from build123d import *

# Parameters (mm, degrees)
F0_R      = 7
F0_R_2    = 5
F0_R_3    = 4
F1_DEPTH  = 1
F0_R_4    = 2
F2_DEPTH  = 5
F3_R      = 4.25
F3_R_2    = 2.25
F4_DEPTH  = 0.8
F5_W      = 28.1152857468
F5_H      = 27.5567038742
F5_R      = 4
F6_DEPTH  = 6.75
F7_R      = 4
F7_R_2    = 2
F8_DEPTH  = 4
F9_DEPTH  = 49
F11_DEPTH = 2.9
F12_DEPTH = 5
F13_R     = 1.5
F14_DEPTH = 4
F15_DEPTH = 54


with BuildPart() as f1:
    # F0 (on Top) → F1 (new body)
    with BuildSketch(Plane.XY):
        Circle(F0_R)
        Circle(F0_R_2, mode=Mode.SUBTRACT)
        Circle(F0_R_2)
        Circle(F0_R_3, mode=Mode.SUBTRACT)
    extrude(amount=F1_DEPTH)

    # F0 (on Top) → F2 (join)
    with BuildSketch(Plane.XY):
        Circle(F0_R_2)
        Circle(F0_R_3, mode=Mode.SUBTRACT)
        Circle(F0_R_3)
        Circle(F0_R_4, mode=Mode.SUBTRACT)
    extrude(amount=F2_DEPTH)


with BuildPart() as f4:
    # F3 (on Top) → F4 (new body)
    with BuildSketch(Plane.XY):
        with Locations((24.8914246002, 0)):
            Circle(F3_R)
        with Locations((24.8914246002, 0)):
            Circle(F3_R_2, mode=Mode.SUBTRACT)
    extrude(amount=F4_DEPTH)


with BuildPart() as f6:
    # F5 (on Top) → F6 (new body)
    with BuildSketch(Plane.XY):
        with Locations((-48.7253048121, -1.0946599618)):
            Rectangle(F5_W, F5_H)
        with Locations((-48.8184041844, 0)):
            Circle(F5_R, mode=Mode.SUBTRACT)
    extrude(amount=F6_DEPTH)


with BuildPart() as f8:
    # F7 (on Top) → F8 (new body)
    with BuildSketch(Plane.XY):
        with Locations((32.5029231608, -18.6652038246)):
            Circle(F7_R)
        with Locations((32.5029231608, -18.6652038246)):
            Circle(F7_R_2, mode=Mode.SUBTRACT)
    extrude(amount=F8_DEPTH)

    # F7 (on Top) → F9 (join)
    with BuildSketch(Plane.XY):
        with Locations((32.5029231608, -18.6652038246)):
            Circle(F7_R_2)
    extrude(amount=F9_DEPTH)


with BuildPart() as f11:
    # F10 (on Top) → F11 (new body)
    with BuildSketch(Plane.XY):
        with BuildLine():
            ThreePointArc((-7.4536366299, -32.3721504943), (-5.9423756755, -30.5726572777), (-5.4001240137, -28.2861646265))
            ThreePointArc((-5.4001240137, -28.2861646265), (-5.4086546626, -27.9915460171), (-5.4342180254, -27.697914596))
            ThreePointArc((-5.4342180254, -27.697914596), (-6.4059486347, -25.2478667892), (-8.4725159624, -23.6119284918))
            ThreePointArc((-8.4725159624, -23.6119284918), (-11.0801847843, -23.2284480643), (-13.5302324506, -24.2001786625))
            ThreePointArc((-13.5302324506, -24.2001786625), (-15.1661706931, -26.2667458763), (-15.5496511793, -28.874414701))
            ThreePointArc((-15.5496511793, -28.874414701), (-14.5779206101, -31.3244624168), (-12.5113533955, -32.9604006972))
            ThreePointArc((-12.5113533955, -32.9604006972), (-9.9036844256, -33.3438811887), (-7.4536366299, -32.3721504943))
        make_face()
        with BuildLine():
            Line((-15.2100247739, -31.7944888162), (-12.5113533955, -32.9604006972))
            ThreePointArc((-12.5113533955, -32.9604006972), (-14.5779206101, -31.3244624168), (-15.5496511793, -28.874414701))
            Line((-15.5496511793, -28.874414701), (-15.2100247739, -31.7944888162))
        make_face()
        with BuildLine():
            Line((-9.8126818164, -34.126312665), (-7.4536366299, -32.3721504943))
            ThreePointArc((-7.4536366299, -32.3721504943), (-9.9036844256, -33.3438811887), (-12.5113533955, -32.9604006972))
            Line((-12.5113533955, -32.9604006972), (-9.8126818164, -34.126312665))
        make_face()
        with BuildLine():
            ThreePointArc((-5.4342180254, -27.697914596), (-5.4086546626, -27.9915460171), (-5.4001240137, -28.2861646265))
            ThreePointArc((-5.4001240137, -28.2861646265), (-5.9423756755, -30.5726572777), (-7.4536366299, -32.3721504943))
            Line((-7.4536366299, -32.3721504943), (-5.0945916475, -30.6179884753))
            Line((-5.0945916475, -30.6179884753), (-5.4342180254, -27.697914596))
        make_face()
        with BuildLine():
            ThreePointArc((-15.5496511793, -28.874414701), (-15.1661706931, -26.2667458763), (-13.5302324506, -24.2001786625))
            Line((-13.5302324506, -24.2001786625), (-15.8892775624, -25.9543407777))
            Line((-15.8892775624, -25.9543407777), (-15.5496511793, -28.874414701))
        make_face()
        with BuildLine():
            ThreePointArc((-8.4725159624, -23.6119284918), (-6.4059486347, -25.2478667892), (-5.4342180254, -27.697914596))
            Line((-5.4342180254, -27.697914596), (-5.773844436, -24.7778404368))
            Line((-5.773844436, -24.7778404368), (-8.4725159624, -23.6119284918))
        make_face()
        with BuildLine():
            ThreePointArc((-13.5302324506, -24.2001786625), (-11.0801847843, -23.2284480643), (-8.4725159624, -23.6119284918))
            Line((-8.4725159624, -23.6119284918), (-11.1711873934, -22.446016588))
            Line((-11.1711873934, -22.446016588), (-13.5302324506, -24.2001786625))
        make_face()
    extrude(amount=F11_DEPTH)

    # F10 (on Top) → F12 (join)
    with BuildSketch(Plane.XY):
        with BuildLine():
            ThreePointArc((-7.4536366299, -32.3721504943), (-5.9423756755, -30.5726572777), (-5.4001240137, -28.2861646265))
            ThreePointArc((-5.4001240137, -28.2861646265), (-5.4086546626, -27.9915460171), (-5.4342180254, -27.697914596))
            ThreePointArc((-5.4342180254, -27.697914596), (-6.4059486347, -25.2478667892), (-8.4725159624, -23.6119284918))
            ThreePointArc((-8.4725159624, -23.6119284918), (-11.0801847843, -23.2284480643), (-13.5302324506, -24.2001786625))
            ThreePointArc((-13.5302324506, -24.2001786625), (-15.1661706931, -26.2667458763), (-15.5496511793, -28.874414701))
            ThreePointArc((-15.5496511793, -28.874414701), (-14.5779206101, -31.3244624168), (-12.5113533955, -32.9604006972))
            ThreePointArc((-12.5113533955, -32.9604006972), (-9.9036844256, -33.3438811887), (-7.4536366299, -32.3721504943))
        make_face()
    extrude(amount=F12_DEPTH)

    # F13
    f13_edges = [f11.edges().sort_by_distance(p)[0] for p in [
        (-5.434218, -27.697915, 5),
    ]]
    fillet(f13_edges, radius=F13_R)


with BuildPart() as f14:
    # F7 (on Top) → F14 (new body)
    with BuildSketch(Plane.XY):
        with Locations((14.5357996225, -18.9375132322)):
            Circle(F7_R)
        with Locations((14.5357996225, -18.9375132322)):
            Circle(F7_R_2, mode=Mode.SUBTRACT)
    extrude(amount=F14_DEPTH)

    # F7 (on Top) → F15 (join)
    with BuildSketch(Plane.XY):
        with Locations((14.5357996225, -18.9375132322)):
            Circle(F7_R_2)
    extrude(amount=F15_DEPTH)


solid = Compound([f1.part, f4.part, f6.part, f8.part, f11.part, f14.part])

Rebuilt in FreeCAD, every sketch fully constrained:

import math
import FreeCAD as App
import Part
import Sketcher

V = App.Vector
Q = App.Units.Quantity


def edges_at(feature, points):
    """Names of the edges that pass closest to the given points."""
    edges = feature.Shape.Edges
    near = lambda p: min(range(len(edges)), key=lambda i: edges[i].distToShape(Part.Vertex(*p))[0])
    return sorted({f"Edge{near(p) + 1}" for p in points})

doc = App.newDocument("Part")
body = doc.addObject("PartDesign::Body", "Body")

sketch1 = body.newObject("Sketcher::SketchObject", "Sketch")
sketch1.AttachmentSupport = (doc.getObject("XY_Plane"), [""])
sketch1.MapMode = "FlatFace"
sketch1.addGeometry(Part.Circle(V(0, 0, 0), V(0, 0, 1), 7), False)
sketch1.addGeometry(Part.Circle(V(0, 0, 0), V(0, 0, 1), 4), False)
sketch1.addConstraint(Sketcher.Constraint("Coincident", 0, 3, -1, 1))
sketch1.addConstraint(Sketcher.Constraint("Coincident", 1, 3, -1, 1))
sketch1.addConstraint(Sketcher.Constraint("Diameter", 0, Q("14 mm")))
sketch1.addConstraint(Sketcher.Constraint("Diameter", 1, Q("8 mm")))
pad1 = body.newObject("PartDesign::Pad", "Pad")
pad1.Profile = sketch1
pad1.Length = 1

sketch2 = body.newObject("Sketcher::SketchObject", "Sketch001")
sketch2.AttachmentSupport = (doc.getObject("XY_Plane"), [""])
sketch2.MapMode = "FlatFace"
sketch2.addGeometry(Part.Circle(V(0, 0, 0), V(0, 0, 1), 5), False)
sketch2.addGeometry(Part.Circle(V(0, 0, 0), V(0, 0, 1), 2), False)
sketch2.addConstraint(Sketcher.Constraint("Coincident", 0, 3, -1, 1))
sketch2.addConstraint(Sketcher.Constraint("Coincident", 1, 3, -1, 1))
sketch2.addConstraint(Sketcher.Constraint("Diameter", 0, Q("10 mm")))
sketch2.addConstraint(Sketcher.Constraint("Diameter", 1, Q("4 mm")))
pad2 = body.newObject("PartDesign::Pad", "Pad001")
pad2.Profile = sketch2
pad2.Length = 5
body2 = doc.addObject("PartDesign::Body", "Body001")

sketch3 = body2.newObject("Sketcher::SketchObject", "Sketch002")
sketch3.AttachmentSupport = (doc.getObject("XY_Plane001"), [""])
sketch3.MapMode = "FlatFace"
sketch3.addGeometry(Part.Circle(V(24.9, 0, 0), V(0, 0, 1), 4.2), False)
sketch3.addGeometry(Part.Circle(V(24.9, 0, 0), V(0, 0, 1), 2.2), False)
sketch3.addConstraint(Sketcher.Constraint("Coincident", 1, 3, 0, 3))
sketch3.addConstraint(Sketcher.Constraint("PointOnObject", 0, 3, -1))
sketch3.addConstraint(Sketcher.Constraint("Diameter", 0, Q("8.5 mm")))
sketch3.addConstraint(Sketcher.Constraint("Diameter", 1, Q("4.5 mm")))
sketch3.addConstraint(Sketcher.Constraint("DistanceX", -1, 1, 0, 3, Q("24.891425 mm")))
pad3 = body2.newObject("PartDesign::Pad", "Pad002")
pad3.Profile = sketch3
pad3.Length = 0.8
body3 = doc.addObject("PartDesign::Body", "Body002")

sketch4 = body3.newObject("Sketcher::SketchObject", "Sketch003")
sketch4.AttachmentSupport = (doc.getObject("XY_Plane002"), [""])
sketch4.MapMode = "FlatFace"
sketch4.addGeometry(Part.LineSegment(V(-62.8, 12.7, 0), V(-62.8, -14.9, 0)), False)
sketch4.addGeometry(Part.LineSegment(V(-62.8, -14.9, 0), V(-34.7, -14.9, 0)), False)
sketch4.addGeometry(Part.LineSegment(V(-34.7, -14.9, 0), V(-34.7, 12.7, 0)), False)
sketch4.addGeometry(Part.LineSegment(V(-34.7, 12.7, 0), V(-62.8, 12.7, 0)), False)
sketch4.addGeometry(Part.Circle(V(-48.8, 0, 0), V(0, 0, 1), 4), False)
sketch4.addConstraint(Sketcher.Constraint("Coincident", 0, 2, 1, 1))
sketch4.addConstraint(Sketcher.Constraint("Coincident", 1, 2, 2, 1))
sketch4.addConstraint(Sketcher.Constraint("Coincident", 2, 2, 3, 1))
sketch4.addConstraint(Sketcher.Constraint("Coincident", 3, 2, 0, 1))
sketch4.addConstraint(Sketcher.Constraint("Vertical", 0))
sketch4.addConstraint(Sketcher.Constraint("Horizontal", 1))
sketch4.addConstraint(Sketcher.Constraint("Vertical", 2))
sketch4.addConstraint(Sketcher.Constraint("Horizontal", 3))
sketch4.addConstraint(Sketcher.Constraint("PointOnObject", 4, 3, -1))
sketch4.addConstraint(Sketcher.Constraint("Diameter", 4, Q("8 mm")))
sketch4.addConstraint(Sketcher.Constraint("DistanceX", 1, 1, 1, 2, Q("28.115286 mm")))
sketch4.addConstraint(Sketcher.Constraint("DistanceY", 0, 2, 0, 1, Q("27.556704 mm")))
sketch4.addConstraint(Sketcher.Constraint("DistanceY", 0, 2, -1, 1, Q("14.873012 mm")))
sketch4.addConstraint(Sketcher.Constraint("DistanceX", 1, 2, -1, 1, Q("34.667662 mm")))
sketch4.addConstraint(Sketcher.Constraint("DistanceX", 4, 3, -1, 1, Q("48.818404 mm")))
pad4 = body3.newObject("PartDesign::Pad", "Pad003")
pad4.Profile = sketch4
pad4.Length = 6.75
body4 = doc.addObject("PartDesign::Body", "Body003")

sketch5 = body4.newObject("Sketcher::SketchObject", "Sketch004")
sketch5.AttachmentSupport = (doc.getObject("XY_Plane003"), [""])
sketch5.MapMode = "FlatFace"
sketch5.addGeometry(Part.Circle(V(32.5, -18.7, 0), V(0, 0, 1), 4), False)
sketch5.addGeometry(Part.Circle(V(32.5, -18.7, 0), V(0, 0, 1), 2), False)
sketch5.addConstraint(Sketcher.Constraint("Coincident", 1, 3, 0, 3))
sketch5.addConstraint(Sketcher.Constraint("Diameter", 0, Q("8 mm")))
sketch5.addConstraint(Sketcher.Constraint("Diameter", 1, Q("4 mm")))
sketch5.addConstraint(Sketcher.Constraint("DistanceX", -1, 1, 0, 3, Q("32.502923 mm")))
sketch5.addConstraint(Sketcher.Constraint("DistanceY", 0, 3, -1, 1, Q("18.665204 mm")))
pad5 = body4.newObject("PartDesign::Pad", "Pad004")
pad5.Profile = sketch5
pad5.Length = 4

sketch6 = body4.newObject("Sketcher::SketchObject", "Sketch005")
sketch6.AttachmentSupport = (doc.getObject("XY_Plane003"), [""])
sketch6.MapMode = "FlatFace"
sketch6.addGeometry(Part.Circle(V(32.5, -18.7, 0), V(0, 0, 1), 2), False)
sketch6.addConstraint(Sketcher.Constraint("Diameter", 0, Q("4 mm")))
sketch6.addConstraint(Sketcher.Constraint("DistanceX", -1, 1, 0, 3, Q("32.502923 mm")))
sketch6.addConstraint(Sketcher.Constraint("DistanceY", 0, 3, -1, 1, Q("18.665204 mm")))
pad6 = body4.newObject("PartDesign::Pad", "Pad005")
pad6.Profile = sketch6
pad6.Length = 49
body5 = doc.addObject("PartDesign::Body", "Body004")

sketch7 = body5.newObject("Sketcher::SketchObject", "Sketch006")
sketch7.AttachmentSupport = (doc.getObject("XY_Plane004"), [""])
sketch7.MapMode = "FlatFace"
sketch7.addGeometry(Part.LineSegment(V(-13.5, -24.2, 0), V(-15.9, -26, 0)), False)
sketch7.addGeometry(Part.LineSegment(V(-15.9, -26, 0), V(-15.5, -28.9, 0)), False)
sketch7.addGeometry(Part.LineSegment(V(-15.5, -28.9, 0), V(-15.2, -31.8, 0)), False)
sketch7.addGeometry(Part.LineSegment(V(-15.2, -31.8, 0), V(-12.5, -33, 0)), False)
sketch7.addGeometry(Part.LineSegment(V(-12.5, -33, 0), V(-9.8, -34.1, 0)), False)
sketch7.addGeometry(Part.LineSegment(V(-9.8, -34.1, 0), V(-7.5, -32.4, 0)), False)
sketch7.addGeometry(Part.LineSegment(V(-7.5, -32.4, 0), V(-5.1, -30.6, 0)), False)
sketch7.addGeometry(Part.LineSegment(V(-5.1, -30.6, 0), V(-5.4, -27.7, 0)), False)
sketch7.addGeometry(Part.LineSegment(V(-5.4, -27.7, 0), V(-5.8, -24.8, 0)), False)
sketch7.addGeometry(Part.LineSegment(V(-5.8, -24.8, 0), V(-8.5, -23.6, 0)), False)
sketch7.addGeometry(Part.LineSegment(V(-8.5, -23.6, 0), V(-11.2, -22.4, 0)), False)
sketch7.addGeometry(Part.LineSegment(V(-11.2, -22.4, 0), V(-13.5, -24.2, 0)), False)
sketch7.addConstraint(Sketcher.Constraint("Coincident", 0, 2, 1, 1))
sketch7.addConstraint(Sketcher.Constraint("Coincident", 1, 2, 2, 1))
sketch7.addConstraint(Sketcher.Constraint("Coincident", 2, 2, 3, 1))
sketch7.addConstraint(Sketcher.Constraint("Coincident", 3, 2, 4, 1))
sketch7.addConstraint(Sketcher.Constraint("Coincident", 4, 2, 5, 1))
sketch7.addConstraint(Sketcher.Constraint("Coincident", 5, 2, 6, 1))
sketch7.addConstraint(Sketcher.Constraint("Coincident", 6, 2, 7, 1))
sketch7.addConstraint(Sketcher.Constraint("Coincident", 7, 2, 8, 1))
sketch7.addConstraint(Sketcher.Constraint("Coincident", 8, 2, 9, 1))
sketch7.addConstraint(Sketcher.Constraint("Coincident", 9, 2, 10, 1))
sketch7.addConstraint(Sketcher.Constraint("Coincident", 10, 2, 11, 1))
sketch7.addConstraint(Sketcher.Constraint("Coincident", 11, 2, 0, 1))
sketch7.addConstraint(Sketcher.Constraint("Parallel", 1, 2))
sketch7.addConstraint(Sketcher.Constraint("Parallel", 3, 4))
sketch7.addConstraint(Sketcher.Constraint("Parallel", 0, 5))
sketch7.addConstraint(Sketcher.Constraint("Parallel", 5, 6))
sketch7.addConstraint(Sketcher.Constraint("Parallel", 2, 7))
sketch7.addConstraint(Sketcher.Constraint("Parallel", 7, 8))
sketch7.addConstraint(Sketcher.Constraint("Parallel", 4, 9))
sketch7.addConstraint(Sketcher.Constraint("Parallel", 9, 10))
sketch7.addConstraint(Sketcher.Constraint("Parallel", 6, 11))
sketch7.addConstraint(Sketcher.Constraint("Equal", 0, 1))
sketch7.addConstraint(Sketcher.Constraint("Equal", 1, 2))
sketch7.addConstraint(Sketcher.Constraint("Equal", 2, 3))
sketch7.addConstraint(Sketcher.Constraint("Equal", 3, 4))
sketch7.addConstraint(Sketcher.Constraint("Equal", 4, 5))
sketch7.addConstraint(Sketcher.Constraint("Equal", 5, 6))
sketch7.addConstraint(Sketcher.Constraint("Equal", 6, 7))
sketch7.addConstraint(Sketcher.Constraint("Equal", 7, 8))
sketch7.addConstraint(Sketcher.Constraint("Equal", 8, 9))
sketch7.addConstraint(Sketcher.Constraint("DistanceY", 3, 2, -1, 1, Q("32.960401 mm")))
sketch7.addConstraint(Sketcher.Constraint("DistanceY", 2, 2, 6, 2, Q("1.1765 mm")))
sketch7.addConstraint(Sketcher.Constraint("DistanceY", 4, 2, 7, 2, Q("6.428398 mm")))
sketch7.addConstraint(Sketcher.Constraint("Distance", 0, Q("2.939758 mm")))
sketch7.addConstraint(Sketcher.Constraint("DistanceY", 0, 2, -1, 1, Q("25.954341 mm")))
sketch7.addConstraint(Sketcher.Constraint("DistanceX", 1, 2, -1, 1, Q("15.549651 mm")))
pad7 = body5.newObject("PartDesign::Pad", "Pad006")
pad7.Profile = sketch7
pad7.Length = 2.9

sketch8 = body5.newObject("Sketcher::SketchObject", "Sketch007")
sketch8.AttachmentSupport = (doc.getObject("XY_Plane004"), [""])
sketch8.MapMode = "FlatFace"
sketch8.addGeometry(Part.ArcOfCircle(Part.Circle(V(-10.5, -28.3, 0), V(0, 0, 1), 5.1), math.radians(-53), math.radians(0)), False)
sketch8.addGeometry(Part.ArcOfCircle(Part.Circle(V(-10.5, -28.3, 0), V(0, 0, 1), 5.1), math.radians(0), math.radians(6.63)), False)
sketch8.addGeometry(Part.ArcOfCircle(Part.Circle(V(-10.5, -28.3, 0), V(0, 0, 1), 5.1), math.radians(7), math.radians(67)), False)
sketch8.addGeometry(Part.ArcOfCircle(Part.Circle(V(-10.5, -28.3, 0), V(0, 0, 1), 5.1), math.radians(67), math.radians(127)), False)
sketch8.addGeometry(Part.ArcOfCircle(Part.Circle(V(-10.5, -28.3, 0), V(0, 0, 1), 5.1), math.radians(127), math.radians(187)), False)
sketch8.addGeometry(Part.ArcOfCircle(Part.Circle(V(-10.5, -28.3, 0), V(0, 0, 1), 5.1), math.radians(-173), math.radians(-113)), False)
sketch8.addGeometry(Part.ArcOfCircle(Part.Circle(V(-10.5, -28.3, 0), V(0, 0, 1), 5.1), math.radians(-113), math.radians(-53)), False)
sketch8.addConstraint(Sketcher.Constraint("Tangent", 0, 2, 1, 1))
sketch8.addConstraint(Sketcher.Constraint("Tangent", 1, 2, 2, 1))
sketch8.addConstraint(Sketcher.Constraint("Tangent", 2, 2, 3, 1))
sketch8.addConstraint(Sketcher.Constraint("Tangent", 3, 2, 4, 1))
sketch8.addConstraint(Sketcher.Constraint("Tangent", 4, 2, 5, 1))
sketch8.addConstraint(Sketcher.Constraint("Tangent", 5, 2, 6, 1))
sketch8.addConstraint(Sketcher.Constraint("Tangent", 6, 2, 0, 1))
sketch8.addConstraint(Sketcher.Constraint("Coincident", 2, 3, 0, 3))
sketch8.addConstraint(Sketcher.Constraint("Coincident", 4, 3, 0, 3))
sketch8.addConstraint(Sketcher.Constraint("Horizontal", 6, 3, 0, 2))
sketch8.addConstraint(Sketcher.Constraint("Radius", 0, Q("5.091811 mm")))
sketch8.addConstraint(Sketcher.Constraint("DistanceY", 5, 2, -1, 1, Q("32.960401 mm")))
sketch8.addConstraint(Sketcher.Constraint("DistanceX", 1, 2, -1, 1, Q("5.434218 mm")))
sketch8.addConstraint(Sketcher.Constraint("DistanceY", 2, 2, -1, 1, Q("23.611928 mm")))
sketch8.addConstraint(Sketcher.Constraint("DistanceY", 3, 2, -1, 1, Q("24.200179 mm")))
sketch8.addConstraint(Sketcher.Constraint("DistanceX", 4, 2, -1, 1, Q("15.549651 mm")))
sketch8.addConstraint(Sketcher.Constraint("DistanceY", 6, 2, -1, 1, Q("32.37215 mm")))
sketch8.addConstraint(Sketcher.Constraint("DistanceY", 0, 2, 1, 2, Q("0.58825 mm")))
sketch8.addConstraint(Sketcher.Constraint("DistanceX", 0, 3, 2, 2, Q("2.019419 mm")))
pad8 = body5.newObject("PartDesign::Pad", "Pad007")
pad8.Profile = sketch8
pad8.Length = 5
doc.recompute()

fillet = body5.newObject("PartDesign::Fillet", "Fillet")
fillet.Base = (pad8, edges_at(pad8, [(-5.409, -27.992, 5)]))
fillet.Radius = 1.5
body6 = doc.addObject("PartDesign::Body", "Body005")

sketch9 = body6.newObject("Sketcher::SketchObject", "Sketch008")
sketch9.AttachmentSupport = (doc.getObject("XY_Plane005"), [""])
sketch9.MapMode = "FlatFace"
sketch9.addGeometry(Part.Circle(V(14.5, -18.9, 0), V(0, 0, 1), 4), False)
sketch9.addGeometry(Part.Circle(V(14.5, -18.9, 0), V(0, 0, 1), 2), False)
sketch9.addConstraint(Sketcher.Constraint("Coincident", 1, 3, 0, 3))
sketch9.addConstraint(Sketcher.Constraint("Diameter", 0, Q("8 mm")))
sketch9.addConstraint(Sketcher.Constraint("Diameter", 1, Q("4 mm")))
sketch9.addConstraint(Sketcher.Constraint("DistanceX", -1, 1, 0, 3, Q("14.5358 mm")))
sketch9.addConstraint(Sketcher.Constraint("DistanceY", 0, 3, -1, 1, Q("18.937513 mm")))
pad9 = body6.newObject("PartDesign::Pad", "Pad008")
pad9.Profile = sketch9
pad9.Length = 4

sketch10 = body6.newObject("Sketcher::SketchObject", "Sketch009")
sketch10.AttachmentSupport = (doc.getObject("XY_Plane005"), [""])
sketch10.MapMode = "FlatFace"
sketch10.addGeometry(Part.Circle(V(14.5, -18.9, 0), V(0, 0, 1), 2), False)
sketch10.addConstraint(Sketcher.Constraint("Diameter", 0, Q("4 mm")))
sketch10.addConstraint(Sketcher.Constraint("DistanceX", -1, 1, 0, 3, Q("14.5358 mm")))
sketch10.addConstraint(Sketcher.Constraint("DistanceY", 0, 3, -1, 1, Q("18.937513 mm")))
pad10 = body6.newObject("PartDesign::Pad", "Pad009")
pad10.Profile = sketch10
pad10.Length = 54

doc.recompute()
